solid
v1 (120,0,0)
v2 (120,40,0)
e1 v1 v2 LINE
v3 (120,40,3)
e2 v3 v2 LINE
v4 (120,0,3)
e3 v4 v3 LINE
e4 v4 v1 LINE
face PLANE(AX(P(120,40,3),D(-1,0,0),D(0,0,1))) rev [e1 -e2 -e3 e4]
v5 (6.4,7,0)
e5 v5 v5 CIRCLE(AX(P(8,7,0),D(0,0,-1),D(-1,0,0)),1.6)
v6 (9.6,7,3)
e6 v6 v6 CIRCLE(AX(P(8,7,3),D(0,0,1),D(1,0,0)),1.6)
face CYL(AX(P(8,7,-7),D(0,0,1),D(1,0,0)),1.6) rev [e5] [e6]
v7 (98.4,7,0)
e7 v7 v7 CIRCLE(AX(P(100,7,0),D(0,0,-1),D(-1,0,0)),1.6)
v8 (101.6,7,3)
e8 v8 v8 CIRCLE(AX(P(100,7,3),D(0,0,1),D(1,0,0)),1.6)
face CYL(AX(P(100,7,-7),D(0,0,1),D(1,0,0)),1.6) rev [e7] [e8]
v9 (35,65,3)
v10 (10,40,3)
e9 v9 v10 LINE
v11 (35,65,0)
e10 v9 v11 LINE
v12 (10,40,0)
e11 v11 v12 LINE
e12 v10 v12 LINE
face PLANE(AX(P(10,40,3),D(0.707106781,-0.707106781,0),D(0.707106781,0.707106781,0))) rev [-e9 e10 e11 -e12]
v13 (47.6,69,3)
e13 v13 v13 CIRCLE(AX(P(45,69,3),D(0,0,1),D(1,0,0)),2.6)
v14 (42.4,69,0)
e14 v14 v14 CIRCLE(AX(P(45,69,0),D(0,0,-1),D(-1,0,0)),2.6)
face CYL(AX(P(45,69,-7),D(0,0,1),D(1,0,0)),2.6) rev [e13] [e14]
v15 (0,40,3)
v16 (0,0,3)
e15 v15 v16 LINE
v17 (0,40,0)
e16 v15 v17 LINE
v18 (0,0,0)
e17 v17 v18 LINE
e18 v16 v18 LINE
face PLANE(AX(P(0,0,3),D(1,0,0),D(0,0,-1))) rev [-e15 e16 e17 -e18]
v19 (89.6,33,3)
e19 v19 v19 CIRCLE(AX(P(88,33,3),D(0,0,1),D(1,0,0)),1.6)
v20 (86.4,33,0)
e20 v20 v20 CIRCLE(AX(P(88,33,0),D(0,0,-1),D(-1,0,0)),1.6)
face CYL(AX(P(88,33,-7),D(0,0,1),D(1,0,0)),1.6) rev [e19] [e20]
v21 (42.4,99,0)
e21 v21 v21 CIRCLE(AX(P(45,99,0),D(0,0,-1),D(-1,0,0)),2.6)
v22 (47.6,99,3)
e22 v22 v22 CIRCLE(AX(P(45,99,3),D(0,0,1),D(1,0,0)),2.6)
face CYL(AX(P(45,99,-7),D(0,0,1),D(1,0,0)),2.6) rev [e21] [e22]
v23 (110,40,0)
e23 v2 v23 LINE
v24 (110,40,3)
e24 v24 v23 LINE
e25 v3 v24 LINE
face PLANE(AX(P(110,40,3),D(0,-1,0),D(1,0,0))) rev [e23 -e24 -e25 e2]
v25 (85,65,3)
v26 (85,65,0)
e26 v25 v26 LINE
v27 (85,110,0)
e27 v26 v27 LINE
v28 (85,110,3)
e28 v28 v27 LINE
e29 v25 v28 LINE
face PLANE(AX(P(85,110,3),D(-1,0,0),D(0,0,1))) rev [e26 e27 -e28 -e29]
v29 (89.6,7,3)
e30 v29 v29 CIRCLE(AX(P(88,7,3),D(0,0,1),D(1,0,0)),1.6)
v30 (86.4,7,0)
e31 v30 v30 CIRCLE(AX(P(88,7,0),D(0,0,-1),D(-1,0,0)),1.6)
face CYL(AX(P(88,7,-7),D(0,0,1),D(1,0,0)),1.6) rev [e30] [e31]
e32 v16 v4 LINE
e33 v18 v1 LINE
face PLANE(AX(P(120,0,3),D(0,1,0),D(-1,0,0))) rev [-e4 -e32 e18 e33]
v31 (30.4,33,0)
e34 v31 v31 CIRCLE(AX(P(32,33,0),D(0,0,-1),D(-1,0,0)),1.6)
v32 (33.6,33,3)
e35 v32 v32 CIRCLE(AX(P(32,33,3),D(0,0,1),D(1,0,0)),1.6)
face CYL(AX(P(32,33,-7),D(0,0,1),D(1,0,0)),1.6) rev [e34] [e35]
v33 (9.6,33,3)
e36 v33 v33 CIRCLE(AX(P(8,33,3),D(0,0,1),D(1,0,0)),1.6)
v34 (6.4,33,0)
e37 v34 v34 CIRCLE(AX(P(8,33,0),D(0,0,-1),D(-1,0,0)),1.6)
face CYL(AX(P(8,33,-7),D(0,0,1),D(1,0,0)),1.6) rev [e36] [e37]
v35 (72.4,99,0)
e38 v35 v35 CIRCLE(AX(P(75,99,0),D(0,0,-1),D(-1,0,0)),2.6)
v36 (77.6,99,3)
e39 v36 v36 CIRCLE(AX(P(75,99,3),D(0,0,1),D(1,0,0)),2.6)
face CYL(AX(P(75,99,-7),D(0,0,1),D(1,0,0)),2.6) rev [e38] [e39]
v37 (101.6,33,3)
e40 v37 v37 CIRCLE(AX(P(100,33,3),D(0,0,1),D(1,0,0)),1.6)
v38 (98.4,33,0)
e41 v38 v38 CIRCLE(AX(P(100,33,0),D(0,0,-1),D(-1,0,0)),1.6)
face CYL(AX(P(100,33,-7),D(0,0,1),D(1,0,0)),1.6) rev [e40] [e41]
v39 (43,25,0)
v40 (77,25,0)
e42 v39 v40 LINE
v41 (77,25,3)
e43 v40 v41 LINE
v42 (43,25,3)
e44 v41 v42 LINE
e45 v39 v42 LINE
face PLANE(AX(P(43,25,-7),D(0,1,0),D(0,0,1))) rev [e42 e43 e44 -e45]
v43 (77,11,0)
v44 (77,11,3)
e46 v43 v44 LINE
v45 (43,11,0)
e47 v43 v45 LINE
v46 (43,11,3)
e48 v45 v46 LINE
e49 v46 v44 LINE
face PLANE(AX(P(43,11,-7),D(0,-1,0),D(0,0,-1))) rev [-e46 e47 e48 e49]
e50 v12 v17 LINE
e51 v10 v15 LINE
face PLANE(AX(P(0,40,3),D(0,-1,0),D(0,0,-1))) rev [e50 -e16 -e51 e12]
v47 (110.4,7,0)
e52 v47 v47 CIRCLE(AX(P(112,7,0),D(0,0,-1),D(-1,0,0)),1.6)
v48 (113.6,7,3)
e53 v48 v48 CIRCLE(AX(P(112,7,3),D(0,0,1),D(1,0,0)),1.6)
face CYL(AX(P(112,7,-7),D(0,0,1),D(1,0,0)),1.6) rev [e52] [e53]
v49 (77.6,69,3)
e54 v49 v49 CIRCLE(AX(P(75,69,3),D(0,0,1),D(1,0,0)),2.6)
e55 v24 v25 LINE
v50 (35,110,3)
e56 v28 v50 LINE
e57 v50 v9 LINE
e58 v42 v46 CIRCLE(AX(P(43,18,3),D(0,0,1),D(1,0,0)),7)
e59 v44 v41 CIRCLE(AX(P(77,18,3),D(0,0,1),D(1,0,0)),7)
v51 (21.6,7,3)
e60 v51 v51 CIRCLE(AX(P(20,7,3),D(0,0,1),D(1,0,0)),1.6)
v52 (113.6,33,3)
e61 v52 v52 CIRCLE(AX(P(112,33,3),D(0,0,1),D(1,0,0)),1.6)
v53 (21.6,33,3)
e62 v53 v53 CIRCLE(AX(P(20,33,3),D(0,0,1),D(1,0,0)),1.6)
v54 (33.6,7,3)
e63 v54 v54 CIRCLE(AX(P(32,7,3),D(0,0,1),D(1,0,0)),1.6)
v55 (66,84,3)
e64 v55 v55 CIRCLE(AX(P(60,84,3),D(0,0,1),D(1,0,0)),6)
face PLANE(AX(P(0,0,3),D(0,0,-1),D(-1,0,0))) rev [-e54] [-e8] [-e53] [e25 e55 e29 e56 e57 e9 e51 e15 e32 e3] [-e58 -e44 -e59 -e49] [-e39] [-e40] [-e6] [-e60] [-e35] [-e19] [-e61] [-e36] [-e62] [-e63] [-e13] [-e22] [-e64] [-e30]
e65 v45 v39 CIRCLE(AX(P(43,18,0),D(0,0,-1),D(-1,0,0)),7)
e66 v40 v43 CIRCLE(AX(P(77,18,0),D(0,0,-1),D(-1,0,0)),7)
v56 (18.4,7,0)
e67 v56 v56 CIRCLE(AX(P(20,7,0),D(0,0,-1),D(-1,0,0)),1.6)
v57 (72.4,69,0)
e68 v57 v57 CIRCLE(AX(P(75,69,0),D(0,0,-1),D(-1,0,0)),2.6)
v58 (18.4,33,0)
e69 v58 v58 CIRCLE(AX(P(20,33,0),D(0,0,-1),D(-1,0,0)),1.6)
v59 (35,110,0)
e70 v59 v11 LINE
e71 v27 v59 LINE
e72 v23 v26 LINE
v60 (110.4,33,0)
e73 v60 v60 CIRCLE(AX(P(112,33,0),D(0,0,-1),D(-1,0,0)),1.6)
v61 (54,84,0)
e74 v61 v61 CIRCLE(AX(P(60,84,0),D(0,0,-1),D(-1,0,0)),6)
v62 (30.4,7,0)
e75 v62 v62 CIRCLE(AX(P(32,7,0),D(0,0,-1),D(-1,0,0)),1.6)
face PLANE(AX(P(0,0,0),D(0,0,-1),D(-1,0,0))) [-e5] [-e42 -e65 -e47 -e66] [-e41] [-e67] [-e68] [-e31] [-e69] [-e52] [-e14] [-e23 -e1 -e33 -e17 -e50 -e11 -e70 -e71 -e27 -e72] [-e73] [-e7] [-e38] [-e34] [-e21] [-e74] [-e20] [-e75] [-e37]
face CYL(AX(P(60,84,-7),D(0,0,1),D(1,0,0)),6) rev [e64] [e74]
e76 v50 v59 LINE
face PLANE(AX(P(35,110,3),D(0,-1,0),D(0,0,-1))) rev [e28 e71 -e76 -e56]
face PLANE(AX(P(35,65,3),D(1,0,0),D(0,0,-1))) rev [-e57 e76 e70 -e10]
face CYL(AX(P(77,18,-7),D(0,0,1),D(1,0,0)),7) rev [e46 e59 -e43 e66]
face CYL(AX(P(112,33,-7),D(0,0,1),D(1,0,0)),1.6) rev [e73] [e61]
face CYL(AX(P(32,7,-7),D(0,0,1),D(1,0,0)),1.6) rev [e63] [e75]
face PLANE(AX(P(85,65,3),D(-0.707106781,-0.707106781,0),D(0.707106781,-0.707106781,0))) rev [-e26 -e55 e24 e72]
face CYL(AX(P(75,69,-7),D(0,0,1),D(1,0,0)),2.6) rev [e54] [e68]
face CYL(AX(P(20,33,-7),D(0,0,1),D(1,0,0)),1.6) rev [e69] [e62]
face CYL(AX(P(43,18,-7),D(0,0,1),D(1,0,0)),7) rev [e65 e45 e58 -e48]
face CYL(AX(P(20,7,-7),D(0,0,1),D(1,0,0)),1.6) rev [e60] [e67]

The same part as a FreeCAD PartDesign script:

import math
import FreeCAD as App
import Part
import Sketcher

V = App.Vector

doc = App.newDocument("Part")
body = doc.addObject("PartDesign::Body", "Body")

sketch1 = body.newObject("Sketcher::SketchObject", "Sketch")
sketch1.AttachmentSupport = (doc.getObject("XY_Plane"), [""])
sketch1.MapMode = "FlatFace"
sketch1.addGeometry([
    Part.LineSegment(V(0, 40, 0), V(0, 0, 0)),
    Part.LineSegment(V(0, 0, 0), V(120, 0, 0)),
    Part.LineSegment(V(120, 0, 0), V(120, 40, 0)),
    Part.LineSegment(V(120, 40, 0), V(110, 40, 0)),
    Part.LineSegment(V(110, 40, 0), V(85, 65, 0)),
    Part.LineSegment(V(85, 65, 0), V(85, 110, 0)),
    Part.LineSegment(V(85, 110, 0), V(35, 110, 0)),
    Part.LineSegment(V(35, 110, 0), V(35, 65, 0)),
    Part.LineSegment(V(35, 65, 0), V(10, 40, 0)),
    Part.LineSegment(V(10, 40, 0), V(0, 40, 0)),
], False)
sketch1.addConstraint([
    Sketcher.Constraint("Coincident", 0, 2, 1, 1),
    Sketcher.Constraint("Coincident", 1, 2, 2, 1),
    Sketcher.Constraint("Coincident", 2, 2, 3, 1),
    Sketcher.Constraint("Coincident", 3, 2, 4, 1),
    Sketcher.Constraint("Coincident", 4, 2, 5, 1),
    Sketcher.Constraint("Coincident", 5, 2, 6, 1),
    Sketcher.Constraint("Coincident", 6, 2, 7, 1),
    Sketcher.Constraint("Coincident", 7, 2, 8, 1),
    Sketcher.Constraint("Coincident", 8, 2, 9, 1),
    Sketcher.Constraint("Coincident", 9, 2, 0, 1),
    Sketcher.Constraint("Vertical", 0),
    Sketcher.Constraint("Horizontal", 1),
    Sketcher.Constraint("Vertical", 2),
    Sketcher.Constraint("Horizontal", 3),
    Sketcher.Constraint("Vertical", 5),
    Sketcher.Constraint("Horizontal", 6),
    Sketcher.Constraint("Vertical", 7),
    Sketcher.Constraint("Horizontal", 9),
    Sketcher.Constraint("Coincident", 0, 2, -1, 1),
    Sketcher.Constraint("Perpendicular", 4, 8),
    Sketcher.Constraint("Horizontal", 4, 2, 7, 2),
    Sketcher.Constraint("Horizontal", 3, 2, 8, 2),
    Sketcher.Constraint("Equal", 3, 9),
    Sketcher.Constraint("Equal", 4, 8),
    Sketcher.Constraint("DistanceX", 1, 1, 1, 2, 120.0),
    Sketcher.Constraint("DistanceX", 3, 2, 3, 1, 10.0),
    Sketcher.Constraint("DistanceX", 6, 2, 6, 1, 50.0),
    Sketcher.Constraint("DistanceY", 0, 2, 0, 1, 40.0),
    Sketcher.Constraint("DistanceY", 5, 1, 5, 2, 45.0),
])
pad1 = body.newObject("PartDesign::Pad", "Pad")
pad1.Profile = sketch1
pad1.Length = 3

sketch2 = body.newObject("Sketcher::SketchObject", "Sketch001")
sketch2.AttachmentSupport = (doc.getObject("XY_Plane"), [""])
sketch2.MapMode = "FlatFace"
sketch2.AttachmentOffset = App.Placement(V(0, 0, 3), App.Rotation())
sketch2.addGeometry([
    Part.Circle(V(45, 99, 0), V(0, 0, 1), 2.6),
    Part.Circle(V(75, 99, 0), V(0, 0, 1), 2.6),
    Part.Circle(V(75, 69, 0), V(0, 0, 1), 2.6),
    Part.Circle(V(45, 69, 0), V(0, 0, 1), 2.6),
    Part.Circle(V(8, 33, 0), V(0, 0, 1), 1.6),
    Part.Circle(V(8, 7, 0), V(0, 0, 1), 1.6),
    Part.Circle(V(112, 33, 0), V(0, 0, 1), 1.6),
    Part.Circle(V(112, 7, 0), V(0, 0, 1), 1.6),
    Part.Circle(V(20, 33, 0), V(0, 0, 1), 1.6),
    Part.Circle(V(100, 33, 0), V(0, 0, 1), 1.6),
    Part.Circle(V(20, 7, 0), V(0, 0, 1), 1.6),
    Part.Circle(V(100, 7, 0), V(0, 0, 1), 1.6),
    Part.Circle(V(32, 33, 0), V(0, 0, 1), 1.6),
    Part.Circle(V(32, 7, 0), V(0, 0, 1), 1.6),
    Part.Circle(V(88, 33, 0), V(0, 0, 1), 1.6),
    Part.Circle(V(88, 7, 0), V(0, 0, 1), 1.6),
    Part.Circle(V(60, 84, 0), V(0, 0, 1), 6),
    Part.LineSegment(V(77, 25, 0), V(43, 25, 0)),
    Part.ArcOfCircle(Part.Circle(V(43, 18, 0), V(0, 0, 1), 7), math.radians(90), math.radians(270)),
    Part.LineSegment(V(43, 11, 0), V(77, 11, 0)),
    Part.ArcOfCircle(Part.Circle(V(77, 18, 0), V(0, 0, 1), 7), math.radians(-90), math.radians(90)),
], False)
sketch2.addConstraint([
    Sketcher.Constraint("Tangent", 17, 2, 18, 1),
    Sketcher.Constraint("Tangent", 18, 2, 19, 1),
    Sketcher.Constraint("Tangent", 19, 2, 20, 1),
    Sketcher.Constraint("Tangent", 20, 2, 17, 1),
    Sketcher.Constraint("Horizontal", 17),
    Sketcher.Constraint("Horizontal", 19),
    Sketcher.Constraint("Equal", 0, 1),
    Sketcher.Constraint("Equal", 1, 2),
    Sketcher.Constraint("Equal", 2, 3),
    Sketcher.Constraint("Equal", 4, 5),
    Sketcher.Constraint("Equal", 5, 6),
    Sketcher.Constraint("Equal", 6, 7),
    Sketcher.Constraint("Equal", 7, 8),
    Sketcher.Constraint("Equal", 8, 9),
    Sketcher.Constraint("Equal", 9, 10),
    Sketcher.Constraint("Equal", 10, 11),
    Sketcher.Constraint("Equal", 11, 12),
    Sketcher.Constraint("Equal", 12, 13),
    Sketcher.Constraint("Equal", 13, 14),
    Sketcher.Constraint("Equal", 14, 15),
    Sketcher.Constraint("Horizontal", 0, 3, 1, 3),
    Sketcher.Constraint("Horizontal", 2, 3, 3, 3),
    Sketcher.Constraint("Horizontal", 4, 3, 6, 3),
    Sketcher.Constraint("Horizontal", 5, 3, 7, 3),
    Sketcher.Constraint("Horizontal", 6, 3, 8, 3),
    Sketcher.Constraint("Horizontal", 8, 3, 9, 3),
    Sketcher.Constraint("Horizontal", 7, 3, 10, 3),
    Sketcher.Constraint("Horizontal", 10, 3, 11, 3),
    Sketcher.Constraint("Horizontal", 9, 3, 12, 3),
    Sketcher.Constraint("Horizontal", 11, 3, 13, 3),
    Sketcher.Constraint("Horizontal", 12, 3, 14, 3),
    Sketcher.Constraint("Horizontal", 13, 3, 15, 3),
    Sketcher.Constraint("Vertical", 1, 3, 2, 3),
    Sketcher.Constraint("Vertical", 0, 3, 3, 3),
    Sketcher.Constraint("Vertical", 4, 3, 5, 3),
    Sketcher.Constraint("Vertical", 6, 3, 7, 3),
    Sketcher.Constraint("Vertical", 8, 3, 10, 3),
    Sketcher.Constraint("Vertical", 9, 3, 11, 3),
    Sketcher.Constraint("Vertical", 12, 3, 13, 3),
    Sketcher.Constraint("Vertical", 14, 3, 15, 3),
    Sketcher.Constraint("Diameter", 16, 12.0),
    Sketcher.Constraint("Radius", 18, 7.0),
    Sketcher.Constraint("Diameter", 0, 5.2),
    Sketcher.Constraint("Diameter", 4, 3.2),
    Sketcher.Constraint("DistanceX", 17, 2, 17, 1, 34.0),
    Sketcher.Constraint("DistanceX", -1, 1, 0, 3, 45.0),
    Sketcher.Constraint("DistanceY", -1, 1, 0, 3, 99.0),
    Sketcher.Constraint("DistanceX", -1, 1, 1, 3, 75.0),
    Sketcher.Constraint("DistanceY", -1, 1, 2, 3, 69.0),
    Sketcher.Constraint("DistanceX", -1, 1, 4, 3, 8.0),
    Sketcher.Constraint("DistanceY", -1, 1, 4, 3, 33.0),
    Sketcher.Constraint("DistanceY", -1, 1, 5, 3, 7.0),
    Sketcher.Constraint("DistanceX", -1, 1, 6, 3, 112.0),
    Sketcher.Constraint("DistanceX", -1, 1, 8, 3, 20.0),
    Sketcher.Constraint("DistanceX", -1, 1, 9, 3, 100.0),
    Sketcher.Constraint("DistanceX", -1, 1, 12, 3, 32.0),
    Sketcher.Constraint("DistanceX", -1, 1, 14, 3, 88.0),
    Sketcher.Constraint("DistanceX", -1, 1, 16, 3, 60.0),
    Sketcher.Constraint("DistanceY", -1, 1, 16, 3, 84.0),
    Sketcher.Constraint("DistanceX", -1, 1, 18, 3, 43.0),
    Sketcher.Constraint("DistanceY", -1, 1, 18, 3, 18.0),
])
pocket1 = body.newObject("PartDesign::Pocket", "Pocket")
pocket1.Profile = sketch2
pocket1.Length = 10

doc.recompute()
